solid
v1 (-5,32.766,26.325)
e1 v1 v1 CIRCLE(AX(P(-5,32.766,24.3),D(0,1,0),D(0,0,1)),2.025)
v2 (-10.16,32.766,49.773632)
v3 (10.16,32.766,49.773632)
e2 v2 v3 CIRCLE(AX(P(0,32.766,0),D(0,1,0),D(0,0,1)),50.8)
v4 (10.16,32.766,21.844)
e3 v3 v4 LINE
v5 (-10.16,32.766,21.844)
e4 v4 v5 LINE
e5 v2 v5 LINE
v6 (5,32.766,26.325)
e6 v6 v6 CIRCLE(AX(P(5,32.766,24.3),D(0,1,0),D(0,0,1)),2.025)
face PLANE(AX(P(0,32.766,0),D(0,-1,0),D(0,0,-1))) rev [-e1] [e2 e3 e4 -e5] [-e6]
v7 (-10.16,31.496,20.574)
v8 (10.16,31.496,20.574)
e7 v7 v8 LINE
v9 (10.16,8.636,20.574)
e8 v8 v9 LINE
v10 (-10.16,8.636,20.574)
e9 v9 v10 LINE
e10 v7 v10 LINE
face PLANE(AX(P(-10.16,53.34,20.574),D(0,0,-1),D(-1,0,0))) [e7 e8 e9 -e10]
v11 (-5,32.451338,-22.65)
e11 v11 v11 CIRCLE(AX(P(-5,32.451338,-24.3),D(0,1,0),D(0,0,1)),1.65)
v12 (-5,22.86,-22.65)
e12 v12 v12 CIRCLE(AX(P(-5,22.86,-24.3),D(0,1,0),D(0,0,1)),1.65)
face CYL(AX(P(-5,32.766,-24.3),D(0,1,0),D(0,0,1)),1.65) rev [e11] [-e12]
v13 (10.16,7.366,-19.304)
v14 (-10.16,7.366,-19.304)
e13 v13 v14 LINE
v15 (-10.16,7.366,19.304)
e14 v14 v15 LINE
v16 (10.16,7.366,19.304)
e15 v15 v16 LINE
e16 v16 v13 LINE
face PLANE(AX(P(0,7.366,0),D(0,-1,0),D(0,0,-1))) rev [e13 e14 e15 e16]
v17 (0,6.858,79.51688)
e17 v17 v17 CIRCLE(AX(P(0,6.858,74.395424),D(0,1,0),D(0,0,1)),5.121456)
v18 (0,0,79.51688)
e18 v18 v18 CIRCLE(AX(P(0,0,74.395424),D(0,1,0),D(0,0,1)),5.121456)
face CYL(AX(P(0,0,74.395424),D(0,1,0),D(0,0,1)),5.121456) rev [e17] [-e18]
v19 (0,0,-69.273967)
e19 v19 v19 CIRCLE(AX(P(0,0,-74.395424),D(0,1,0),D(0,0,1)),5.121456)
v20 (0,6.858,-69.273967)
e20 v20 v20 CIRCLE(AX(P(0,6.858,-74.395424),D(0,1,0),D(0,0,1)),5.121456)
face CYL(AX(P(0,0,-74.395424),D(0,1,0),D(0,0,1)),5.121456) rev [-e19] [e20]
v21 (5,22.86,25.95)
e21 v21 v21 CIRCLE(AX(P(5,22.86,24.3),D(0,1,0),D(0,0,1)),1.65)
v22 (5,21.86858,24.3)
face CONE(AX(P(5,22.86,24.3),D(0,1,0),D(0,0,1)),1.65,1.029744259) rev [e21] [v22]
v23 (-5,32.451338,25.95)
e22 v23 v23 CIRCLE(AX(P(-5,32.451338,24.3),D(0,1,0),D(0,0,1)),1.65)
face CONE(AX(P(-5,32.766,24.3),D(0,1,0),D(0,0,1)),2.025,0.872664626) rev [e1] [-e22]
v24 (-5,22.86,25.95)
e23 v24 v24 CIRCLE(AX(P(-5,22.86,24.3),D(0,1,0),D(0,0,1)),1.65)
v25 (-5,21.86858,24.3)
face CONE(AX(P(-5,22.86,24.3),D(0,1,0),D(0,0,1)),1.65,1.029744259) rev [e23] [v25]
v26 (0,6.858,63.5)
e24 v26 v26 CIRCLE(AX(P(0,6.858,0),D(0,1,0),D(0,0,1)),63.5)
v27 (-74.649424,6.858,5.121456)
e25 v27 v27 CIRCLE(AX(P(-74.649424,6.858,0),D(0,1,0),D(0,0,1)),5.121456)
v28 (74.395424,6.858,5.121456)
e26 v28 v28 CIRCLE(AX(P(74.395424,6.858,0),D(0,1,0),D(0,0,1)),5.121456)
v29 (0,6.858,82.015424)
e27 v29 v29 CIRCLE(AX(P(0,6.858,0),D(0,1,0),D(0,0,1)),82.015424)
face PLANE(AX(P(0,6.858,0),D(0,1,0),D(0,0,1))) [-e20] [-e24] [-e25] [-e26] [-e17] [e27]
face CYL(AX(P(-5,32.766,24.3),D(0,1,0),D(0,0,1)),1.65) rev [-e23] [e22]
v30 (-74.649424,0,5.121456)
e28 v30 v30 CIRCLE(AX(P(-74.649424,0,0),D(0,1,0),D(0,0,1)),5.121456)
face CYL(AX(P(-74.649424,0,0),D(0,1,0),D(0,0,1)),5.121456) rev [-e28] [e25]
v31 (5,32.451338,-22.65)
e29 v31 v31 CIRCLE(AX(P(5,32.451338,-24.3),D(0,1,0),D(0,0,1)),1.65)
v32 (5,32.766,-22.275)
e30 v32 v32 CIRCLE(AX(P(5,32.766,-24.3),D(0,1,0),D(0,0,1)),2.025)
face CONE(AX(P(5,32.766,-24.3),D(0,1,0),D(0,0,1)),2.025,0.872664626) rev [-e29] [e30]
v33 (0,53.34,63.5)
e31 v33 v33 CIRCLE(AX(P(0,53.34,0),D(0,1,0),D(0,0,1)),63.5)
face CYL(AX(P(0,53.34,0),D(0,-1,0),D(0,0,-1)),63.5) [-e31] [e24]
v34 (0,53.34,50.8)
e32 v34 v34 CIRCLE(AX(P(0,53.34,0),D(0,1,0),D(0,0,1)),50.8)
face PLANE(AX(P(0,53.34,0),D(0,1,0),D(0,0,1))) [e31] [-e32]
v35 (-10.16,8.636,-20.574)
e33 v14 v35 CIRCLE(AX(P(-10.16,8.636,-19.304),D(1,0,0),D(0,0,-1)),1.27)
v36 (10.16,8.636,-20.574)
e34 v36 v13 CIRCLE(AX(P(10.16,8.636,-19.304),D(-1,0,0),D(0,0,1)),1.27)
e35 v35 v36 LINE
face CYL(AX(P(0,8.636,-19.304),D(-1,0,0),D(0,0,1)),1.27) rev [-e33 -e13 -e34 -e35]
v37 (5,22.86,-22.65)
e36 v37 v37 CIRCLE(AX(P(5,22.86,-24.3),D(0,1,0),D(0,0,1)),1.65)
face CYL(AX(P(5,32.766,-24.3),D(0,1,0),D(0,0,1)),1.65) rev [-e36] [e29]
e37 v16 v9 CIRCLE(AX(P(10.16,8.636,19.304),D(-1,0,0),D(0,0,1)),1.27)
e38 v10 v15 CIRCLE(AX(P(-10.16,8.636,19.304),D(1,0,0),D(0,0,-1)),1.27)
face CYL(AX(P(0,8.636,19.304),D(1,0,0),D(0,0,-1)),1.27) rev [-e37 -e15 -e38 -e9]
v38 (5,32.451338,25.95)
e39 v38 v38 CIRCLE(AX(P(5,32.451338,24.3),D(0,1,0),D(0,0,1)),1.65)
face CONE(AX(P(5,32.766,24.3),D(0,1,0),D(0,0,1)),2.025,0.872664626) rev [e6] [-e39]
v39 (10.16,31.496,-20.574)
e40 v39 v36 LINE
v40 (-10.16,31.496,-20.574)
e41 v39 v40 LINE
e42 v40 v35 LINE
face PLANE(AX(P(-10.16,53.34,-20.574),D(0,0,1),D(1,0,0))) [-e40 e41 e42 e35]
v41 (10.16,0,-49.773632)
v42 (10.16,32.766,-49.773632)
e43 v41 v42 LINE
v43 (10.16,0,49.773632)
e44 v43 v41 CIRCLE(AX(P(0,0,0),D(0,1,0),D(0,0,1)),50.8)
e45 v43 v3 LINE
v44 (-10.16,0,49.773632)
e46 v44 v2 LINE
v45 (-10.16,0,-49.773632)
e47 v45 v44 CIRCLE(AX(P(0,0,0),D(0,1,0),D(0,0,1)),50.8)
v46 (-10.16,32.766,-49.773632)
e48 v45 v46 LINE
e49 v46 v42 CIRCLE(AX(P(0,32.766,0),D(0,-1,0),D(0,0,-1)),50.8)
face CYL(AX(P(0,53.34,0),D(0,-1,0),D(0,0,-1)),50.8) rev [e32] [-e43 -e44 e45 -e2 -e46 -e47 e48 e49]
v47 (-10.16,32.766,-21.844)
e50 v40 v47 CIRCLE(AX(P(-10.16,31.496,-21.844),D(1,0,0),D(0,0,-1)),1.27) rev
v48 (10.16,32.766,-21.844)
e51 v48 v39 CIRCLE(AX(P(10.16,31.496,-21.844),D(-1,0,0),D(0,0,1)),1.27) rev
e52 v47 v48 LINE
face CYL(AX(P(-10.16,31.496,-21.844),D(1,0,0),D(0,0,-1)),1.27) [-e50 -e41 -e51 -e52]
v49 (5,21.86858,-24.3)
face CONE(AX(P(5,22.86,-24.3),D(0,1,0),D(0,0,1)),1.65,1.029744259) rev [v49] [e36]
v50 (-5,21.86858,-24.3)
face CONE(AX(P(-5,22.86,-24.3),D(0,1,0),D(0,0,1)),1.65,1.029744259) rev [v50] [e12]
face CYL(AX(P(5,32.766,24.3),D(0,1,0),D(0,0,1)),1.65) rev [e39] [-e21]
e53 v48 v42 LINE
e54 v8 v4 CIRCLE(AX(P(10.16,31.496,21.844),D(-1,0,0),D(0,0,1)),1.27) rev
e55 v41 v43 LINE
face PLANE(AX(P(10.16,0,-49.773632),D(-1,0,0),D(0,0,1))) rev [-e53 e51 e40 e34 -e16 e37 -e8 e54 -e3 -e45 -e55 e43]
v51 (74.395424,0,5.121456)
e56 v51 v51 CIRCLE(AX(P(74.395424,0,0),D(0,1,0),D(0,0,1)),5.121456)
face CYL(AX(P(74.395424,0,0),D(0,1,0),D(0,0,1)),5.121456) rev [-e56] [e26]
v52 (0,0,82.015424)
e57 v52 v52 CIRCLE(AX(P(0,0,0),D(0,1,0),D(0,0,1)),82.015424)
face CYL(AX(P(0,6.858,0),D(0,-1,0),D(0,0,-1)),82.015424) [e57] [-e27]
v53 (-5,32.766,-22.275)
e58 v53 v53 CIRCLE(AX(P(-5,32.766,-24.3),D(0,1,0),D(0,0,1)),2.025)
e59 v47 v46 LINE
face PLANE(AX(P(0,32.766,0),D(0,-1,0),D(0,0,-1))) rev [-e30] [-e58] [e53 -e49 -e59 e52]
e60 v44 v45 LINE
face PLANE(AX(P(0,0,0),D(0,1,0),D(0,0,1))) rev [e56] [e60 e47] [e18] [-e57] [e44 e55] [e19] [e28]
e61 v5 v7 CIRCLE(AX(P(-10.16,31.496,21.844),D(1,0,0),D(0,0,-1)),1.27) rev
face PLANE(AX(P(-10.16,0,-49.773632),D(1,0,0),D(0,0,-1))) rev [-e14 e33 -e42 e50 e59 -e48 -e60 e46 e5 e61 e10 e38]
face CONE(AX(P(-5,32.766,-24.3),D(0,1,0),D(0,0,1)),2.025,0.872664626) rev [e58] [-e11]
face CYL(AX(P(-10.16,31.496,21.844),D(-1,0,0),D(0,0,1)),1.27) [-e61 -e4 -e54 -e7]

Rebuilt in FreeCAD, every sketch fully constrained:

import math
import FreeCAD as App
import Part
import Sketcher
Q = App.Units.Quantity


def edges_at(feature, points):
    """Names of the edges that pass closest to the given points."""
    edges = feature.Shape.Edges
    near = lambda p: min(range(len(edges)), key=lambda i: edges[i].distToShape(Part.Vertex(*p))[0])
    return sorted({f"Edge{near(p) + 1}" for p in points})


def add_polygon(sketch, points):
    """Adds a closed chain of lines whose ends are joined by coincident constraints."""
    first, n = sketch.GeometryCount, len(points)
    for a, b in zip(points, points[1:] + points[:1]):
        sketch.addGeometry(Part.LineSegment(App.Vector(*a, 0), App.Vector(*b, 0)), False)
    for i in range(n):
        sketch.addConstraint(Sketcher.Constraint("Coincident", first + i, 2, first + (i + 1) % n, 1))

doc = App.newDocument("Part")
body = doc.addObject("PartDesign::Body", "Body")

sketch1 = doc.addObject("Sketcher::SketchObject", "Sketch")
body.addObject(sketch1)
sketch1.AttachmentSupport = (doc.XZ_Plane, [""])
sketch1.MapMode = "FlatFace"
sketch1.addGeometry(Part.Circle(App.Vector(0, 0, 0), App.Vector(0, 0, 1), 64), False)
sketch1.addGeometry(Part.Circle(App.Vector(0, 0, 0), App.Vector(0, 0, 1), 51), False)
sketch1.addConstraint(Sketcher.Constraint("Coincident", 0, 3, -1, 1))
sketch1.addConstraint(Sketcher.Constraint("Coincident", 1, 3, -1, 1))
sketch1.addConstraint(Sketcher.Constraint("Diameter", 0, Q("5 in")))
sketch1.addConstraint(Sketcher.Constraint("Diameter", 1, Q("4 in")))
pad1 = doc.addObject("PartDesign::Pad", "Pad")
body.addObject(pad1)
pad1.Profile = sketch1
pad1.Length = Q("2.1 in")
pad1.Reversed = True

sketch2 = doc.addObject("Sketcher::SketchObject", "Sketch001")
body.addObject(sketch2)
sketch2.AttachmentSupport = (doc.XZ_Plane, [""])
sketch2.MapMode = "FlatFace"
sketch2.addGeometry(Part.Circle(App.Vector(0, 0, 0), App.Vector(0, 0, 1), 82), False)
sketch2.addConstraint(Sketcher.Constraint("Coincident", 0, 3, -1, 1))
sketch2.addConstraint(Sketcher.Constraint("Diameter", 0, Q("164.030847 mm")))
pad2 = doc.addObject("PartDesign::Pad", "Pad001")
body.addObject(pad2)
pad2.Profile = sketch2
pad2.Length = Q("0.27 in")
pad2.Reversed = True

sketch3 = doc.addObject("Sketcher::SketchObject", "Sketch002")
body.addObject(sketch3)
sketch3.AttachmentSupport = (doc.XZ_Plane, [""])
sketch3.MapMode = "FlatFace"
sketch3.AttachmentOffset = App.Placement(App.Vector(0, 0, -0.27 * 25.4), App.Rotation())
sketch3.addGeometry(Part.Circle(App.Vector(0, -74, 0), App.Vector(0, 0, 1), 5), False)
sketch3.addGeometry(Part.Circle(App.Vector(-75, 0, 0), App.Vector(0, 0, 1), 5), False)
sketch3.addGeometry(Part.Circle(App.Vector(74, 0, 0), App.Vector(0, 0, 1), 5), False)
sketch3.addGeometry(Part.Circle(App.Vector(0, 74, 0), App.Vector(0, 0, 1), 5), False)
sketch3.addConstraint(Sketcher.Constraint("Equal", 0, 1))
sketch3.addConstraint(Sketcher.Constraint("Equal", 1, 2))
sketch3.addConstraint(Sketcher.Constraint("Equal", 2, 3))
sketch3.addConstraint(Sketcher.Constraint("Symmetric", 0, 3, 3, 3, -1, 1))
sketch3.addConstraint(Sketcher.Constraint("PointOnObject", 0, 3, -2))
sketch3.addConstraint(Sketcher.Constraint("PointOnObject", 1, 3, -1))
sketch3.addConstraint(Sketcher.Constraint("PointOnObject", 2, 3, -1))
sketch3.addConstraint(Sketcher.Constraint("Diameter", 0, Q("10.242913 mm")))
sketch3.addConstraint(Sketcher.Constraint("DistanceY", 0, 3, -1, 1, Q("74.395424 mm")))
sketch3.addConstraint(Sketcher.Constraint("DistanceX", 1, 3, -1, 1, Q("74.649424 mm")))
sketch3.addConstraint(Sketcher.Constraint("DistanceX", -1, 1, 2, 3, Q("74.395424 mm")))
pocket1 = doc.addObject("PartDesign::Pocket", "Pocket")
body.addObject(pocket1)
pocket1.Profile = sketch3
pocket1.Type = "ThroughAll"
pocket1.Midplane = True

sketch4 = doc.addObject("Sketcher::SketchObject", "Sketch003")
body.addObject(sketch4)
sketch4.AttachmentSupport = (doc.XZ_Plane, [""])
sketch4.MapMode = "FlatFace"
sketch4.AttachmentOffset = App.Placement(App.Vector(0, 0, -0.27 * 25.4), App.Rotation())
sketch4.addGeometry(Part.LineSegment(App.Vector(-10, 50, 0), App.Vector(-10, -50, 0)), False)
sketch4.addGeometry(Part.ArcOfCircle(Part.Circle(App.Vector(0, 0, 0), App.Vector(0, 0, 1), 51), math.radians(102), math.radians(258)), False)
sketch4.addGeometry(Part.LineSegment(App.Vector(10, -50, 0), App.Vector(10, 50, 0)), False)
sketch4.addGeometry(Part.ArcOfCircle(Part.Circle(App.Vector(0, 0, 0), App.Vector(0, 0, 1), 51), math.radians(-78), math.radians(78)), False)
sketch4.addConstraint(Sketcher.Constraint("Coincident", 0, 1, 1, 1))
sketch4.addConstraint(Sketcher.Constraint("Coincident", 1, 2, 0, 2))
sketch4.addConstraint(Sketcher.Constraint("Coincident", 2, 1, 3, 1))
sketch4.addConstraint(Sketcher.Constraint("Coincident", 3, 2, 2, 2))
sketch4.addConstraint(Sketcher.Constraint("Vertical", 0))
sketch4.addConstraint(Sketcher.Constraint("Vertical", 2))
sketch4.addConstraint(Sketcher.Constraint("Coincident", 1, 3, -1, 1))
sketch4.addConstraint(Sketcher.Constraint("Coincident", 3, 3, -1, 1))
sketch4.addConstraint(Sketcher.Constraint("Equal", 1, 3))
sketch4.addConstraint(Sketcher.Constraint("Horizontal", 1, 2, 2, 1))
sketch4.addConstraint(Sketcher.Constraint("Radius", 1, Q("2 in")))
sketch4.addConstraint(Sketcher.Constraint("DistanceX", 0, 1, -1, 1, Q("0.4 in")))
pocket2 = doc.addObject("PartDesign::Pocket", "Pocket001")
body.addObject(pocket2)
pocket2.Profile = sketch4
pocket2.Type = "ThroughAll"
pocket2.Midplane = True

sketch5 = doc.addObject("Sketcher::SketchObject", "Sketch004")
body.addObject(sketch5)
sketch5.AttachmentSupport = (doc.XZ_Plane, [""])
sketch5.MapMode = "FlatFace"
sketch5.AttachmentOffset = App.Placement(App.Vector(0, 0, -0.27 * 25.4), App.Rotation())
sketch5.addGeometry(Part.ArcOfCircle(Part.Circle(App.Vector(0, 0, 0), App.Vector(0, 0, 1), 50.8), math.radians(78), math.radians(102)), False)
sketch5.addGeometry(Part.LineSegment(App.Vector(10.2, 49.8, 0), App.Vector(10.2, -49.9, 0)), False)
sketch5.addGeometry(Part.LineSegment(App.Vector(10.2, -49.9, 0), App.Vector(9.5, -49.9, 0)), False)
sketch5.addGeometry(Part.ArcOfCircle(Part.Circle(App.Vector(0, 0, 0), App.Vector(0, 0, 1), 50.8), math.radians(-101), math.radians(-79)), False)
sketch5.addGeometry(Part.LineSegment(App.Vector(-9.5, -49.9, 0), App.Vector(-10.2, -49.9, 0)), False)
sketch5.addGeometry(Part.LineSegment(App.Vector(-10.2, -49.9, 0), App.Vector(-10.2, 49.8, 0)), False)
sketch5.addConstraint(Sketcher.Constraint("Coincident", 0, 1, 1, 1))
sketch5.addConstraint(Sketcher.Constraint("Coincident", 1, 2, 2, 1))
sketch5.addConstraint(Sketcher.Constraint("Coincident", 2, 2, 3, 2))
sketch5.addConstraint(Sketcher.Constraint("Coincident", 3, 1, 4, 1))
sketch5.addConstraint(Sketcher.Constraint("Coincident", 4, 2, 5, 1))
sketch5.addConstraint(Sketcher.Constraint("Coincident", 5, 2, 0, 2))
sketch5.addConstraint(Sketcher.Constraint("Vertical", 1))
sketch5.addConstraint(Sketcher.Constraint("Horizontal", 2))
sketch5.addConstraint(Sketcher.Constraint("Horizontal", 4))
sketch5.addConstraint(Sketcher.Constraint("Vertical", 5))
sketch5.addConstraint(Sketcher.Constraint("Coincident", 0, 3, -1, 1))
sketch5.addConstraint(Sketcher.Constraint("Coincident", 3, 3, -1, 1))
sketch5.addConstraint(Sketcher.Constraint("Equal", 0, 3))
sketch5.addConstraint(Sketcher.Constraint("Symmetric", 1, 2, 4, 2, -2))
sketch5.addConstraint(Sketcher.Constraint("Radius", 0, Q("2 in")))
sketch5.addConstraint(Sketcher.Constraint("DistanceX", -1, 1, 0, 1, Q("0.4 in")))
sketch5.addConstraint(Sketcher.Constraint("DistanceX", 2, 2, 2, 1, Q("0.671042 mm")))
pad3 = doc.addObject("PartDesign::Pad", "Pad002")
body.addObject(pad3)
pad3.Profile = sketch5
pad3.Length = Q("1.02 in")
pad3.Reversed = True

sketch6 = doc.addObject("Sketcher::SketchObject", "Sketch005")
body.addObject(sketch6)
sketch6.AttachmentSupport = (doc.XZ_Plane, [""])
sketch6.MapMode = "FlatFace"
sketch6.AttachmentOffset = App.Placement(App.Vector(0, 0, -1.29 * 25.4), App.Rotation())
add_polygon(sketch6, [(-10, -21), (-10, 21), (10, 21), (10, -21)])
sketch6.addConstraint(Sketcher.Constraint("Vertical", 0))
sketch6.addConstraint(Sketcher.Constraint("Horizontal", 1))
sketch6.addConstraint(Sketcher.Constraint("Vertical", 2))
sketch6.addConstraint(Sketcher.Constraint("Horizontal", 3))
sketch6.addConstraint(Sketcher.Constraint("Symmetric", 0, 2, 2, 2, -1, 1))
sketch6.addConstraint(Sketcher.Constraint("DistanceX", 1, 1, 1, 2, Q("0.8 in")))
sketch6.addConstraint(Sketcher.Constraint("DistanceY", 0, 1, 0, 2, Q("1.62 in")))
pocket3 = doc.addObject("PartDesign::Pocket", "Pocket002")
body.addObject(pocket3)
pocket3.Profile = sketch6
pocket3.Type = "TwoLengths"
pocket3.Length = 121.526637
pocket3.Length2 = Q("1 in")
doc.recompute()

fillet = doc.addObject("PartDesign::Fillet", "Fillet")
body.addObject(fillet)
fillet.Base = (pocket3, edges_at(pocket3, [
    (0, 32.766, 20.574),
    (0, 7.366, 20.574),
    (0, 7.366, -20.574),
    (0, 32.766, -20.574),
]))
fillet.Radius = Q("0.05 in")

sketch7 = doc.addObject("Sketcher::SketchObject", "Sketch006")
body.addObject(sketch7)
sketch7.AttachmentSupport = (doc.XZ_Plane, [""])
sketch7.MapMode = "FlatFace"
sketch7.AttachmentOffset = App.Placement(App.Vector(0, 0, -1.29 * 25.4), App.Rotation())
sketch7.addGeometry(Part.Circle(App.Vector(5, 24.3, 0), App.Vector(0, 0, 1), 1.6), False)
sketch7.addGeometry(Part.Circle(App.Vector(-5, 24.3, 0), App.Vector(0, 0, 1), 1.6), False)
sketch7.addGeometry(Part.Circle(App.Vector(5, -24.3, 0), App.Vector(0, 0, 1), 1.6), False)
sketch7.addGeometry(Part.Circle(App.Vector(-5, -24.3, 0), App.Vector(0, 0, 1), 1.6), False)
sketch7.addConstraint(Sketcher.Constraint("Equal", 0, 1))
sketch7.addConstraint(Sketcher.Constraint("Equal", 1, 2))
sketch7.addConstraint(Sketcher.Constraint("Equal", 2, 3))
sketch7.addConstraint(Sketcher.Constraint("Symmetric", 1, 3, 2, 3, -1, 1))
sketch7.addConstraint(Sketcher.Constraint("Symmetric", 0, 3, 3, 3, -1, 1))
sketch7.addConstraint(Sketcher.Constraint("Symmetric", 0, 3, 1, 3, -2))
sketch7.addConstraint(Sketcher.Constraint("Diameter", 0, Q("3.3 mm")))
sketch7.addConstraint(Sketcher.Constraint("DistanceX", -1, 1, 0, 3, Q("5 mm")))
sketch7.addConstraint(Sketcher.Constraint("DistanceY", -1, 1, 0, 3, Q("24.3 mm")))
doc.recompute()
hole = doc.addObject("PartDesign::Hole", "Hole")
body.addObject(hole)
hole.Profile = sketch7
hole.ThreadType = "None"
hole.Diameter = 3.3
hole.DepthType = "Dimension"
hole.Depth = Q("0.39 in")
hole.DrillPoint = "Angled"
hole.DrillPointAngle = 118
hole.HoleCutType = "Countersink"
hole.HoleCutDiameter = 4.05
hole.HoleCutCountersinkAngle = 100
hole.Reversed = True

doc.recompute()
